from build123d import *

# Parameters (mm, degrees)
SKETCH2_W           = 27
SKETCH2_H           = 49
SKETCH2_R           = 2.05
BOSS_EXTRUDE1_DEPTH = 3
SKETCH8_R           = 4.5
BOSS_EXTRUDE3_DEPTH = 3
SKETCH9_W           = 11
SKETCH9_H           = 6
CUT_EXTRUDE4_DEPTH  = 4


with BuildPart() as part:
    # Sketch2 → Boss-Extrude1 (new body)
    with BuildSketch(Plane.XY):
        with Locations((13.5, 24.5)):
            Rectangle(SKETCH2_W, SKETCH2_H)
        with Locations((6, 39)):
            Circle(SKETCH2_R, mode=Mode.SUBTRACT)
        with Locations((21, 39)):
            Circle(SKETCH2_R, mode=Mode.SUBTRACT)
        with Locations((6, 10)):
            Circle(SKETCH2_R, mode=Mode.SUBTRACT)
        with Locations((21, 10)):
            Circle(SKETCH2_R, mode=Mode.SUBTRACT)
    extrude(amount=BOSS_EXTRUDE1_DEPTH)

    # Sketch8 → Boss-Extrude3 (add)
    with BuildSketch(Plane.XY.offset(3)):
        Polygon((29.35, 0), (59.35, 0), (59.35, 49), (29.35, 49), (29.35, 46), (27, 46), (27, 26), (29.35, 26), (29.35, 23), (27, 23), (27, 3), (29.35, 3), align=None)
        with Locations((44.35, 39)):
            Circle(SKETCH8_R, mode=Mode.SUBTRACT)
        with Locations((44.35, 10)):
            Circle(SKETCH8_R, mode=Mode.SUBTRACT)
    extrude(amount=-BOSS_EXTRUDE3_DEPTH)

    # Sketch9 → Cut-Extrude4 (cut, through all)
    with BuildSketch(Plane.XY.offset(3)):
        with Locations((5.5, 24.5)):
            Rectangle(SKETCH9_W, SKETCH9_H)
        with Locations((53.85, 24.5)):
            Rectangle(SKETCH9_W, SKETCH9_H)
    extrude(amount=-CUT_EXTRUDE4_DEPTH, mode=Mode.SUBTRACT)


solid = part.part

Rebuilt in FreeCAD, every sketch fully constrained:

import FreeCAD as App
import Part
import Sketcher
Q = App.Units.Quantity

doc = App.newDocument("Part")
body = doc.addObject("PartDesign::Body", "Body")

sketch1 = body.newObject("Sketcher::SketchObject", "Sketch")
sketch1.AttachmentSupport = (doc.getObject("XY_Plane"), [""])
sketch1.MapMode = "FlatFace"
sketch1.addGeometry([
    Part.LineSegment(App.Vector(0, 49, 0), App.Vector(0, 0, 0)),
    Part.LineSegment(App.Vector(0, 0, 0), App.Vector(27, 0, 0)),
    Part.LineSegment(App.Vector(27, 0, 0), App.Vector(27, 49, 0)),
    Part.LineSegment(App.Vector(27, 49, 0), App.Vector(0, 49, 0)),
    Part.Circle(App.Vector(6, 10, 0), App.Vector(0, 0, 1), 2),
    Part.Circle(App.Vector(21, 10, 0), App.Vector(0, 0, 1), 2),
    Part.Circle(App.Vector(6, 39, 0), App.Vector(0, 0, 1), 2),
    Part.Circle(App.Vector(21, 39, 0), App.Vector(0, 0, 1), 2),
], False)
sketch1.addConstraint([
    Sketcher.Constraint("Coincident", 0, 2, 1, 1),
    Sketcher.Constraint("Coincident", 1, 2, 2, 1),
    Sketcher.Constraint("Coincident", 2, 2, 3, 1),
    Sketcher.Constraint("Coincident", 3, 2, 0, 1),
    Sketcher.Constraint("Vertical", 0),
    Sketcher.Constraint("Horizontal", 1),
    Sketcher.Constraint("Vertical", 2),
    Sketcher.Constraint("Horizontal", 3),
    Sketcher.Constraint("Coincident", 0, 2, -1, 1),
    Sketcher.Constraint("Equal", 4, 5),
    Sketcher.Constraint("Equal", 5, 6),
    Sketcher.Constraint("Equal", 6, 7),
    Sketcher.Constraint("Horizontal", 4, 3, 5, 3),
    Sketcher.Constraint("Horizontal", 6, 3, 7, 3),
    Sketcher.Constraint("Vertical", 4, 3, 6, 3),
    Sketcher.Constraint("Vertical", 5, 3, 7, 3),
    Sketcher.Constraint("Diameter", 4, Q("4.1 mm")),
    Sketcher.Constraint("DistanceX", 1, 1, 1, 2, Q("27 mm")),
    Sketcher.Constraint("DistanceY", 0, 2, 0, 1, Q("49 mm")),
    Sketcher.Constraint("DistanceX", -1, 1, 4, 3, Q("6 mm")),
    Sketcher.Constraint("DistanceY", -1, 1, 4, 3, Q("10 mm")),
    Sketcher.Constraint("DistanceX", -1, 1, 5, 3, Q("21 mm")),
    Sketcher.Constraint("DistanceY", -1, 1, 6, 3, Q("39 mm")),
])
pad1 = body.newObject("PartDesign::Pad", "Pad")
pad1.Profile = sketch1
pad1.Length = 3

sketch2 = body.newObject("Sketcher::SketchObject", "Sketch001")
sketch2.AttachmentSupport = (doc.getObject("XY_Plane"), [""])
sketch2.MapMode = "FlatFace"
sketch2.AttachmentOffset = App.Placement(App.Vector(0, 0, 3), App.Rotation())
sketch2.addGeometry([
    Part.LineSegment(App.Vector(29.4, 0, 0), App.Vector(59.4, 0, 0)),
    Part.LineSegment(App.Vector(59.4, 0, 0), App.Vector(59.4, 49, 0)),
    Part.LineSegment(App.Vector(59.4, 49, 0), App.Vector(29.4, 49, 0)),
    Part.LineSegment(App.Vector(29.4, 49, 0), App.Vector(29.4, 46, 0)),
    Part.LineSegment(App.Vector(29.4, 46, 0), App.Vector(27, 46, 0)),
    Part.LineSegment(App.Vector(27, 46, 0), App.Vector(27, 26, 0)),
    Part.LineSegment(App.Vector(27, 26, 0), App.Vector(29.4, 26, 0)),
    Part.LineSegment(App.Vector(29.4, 26, 0), App.Vector(29.4, 23, 0)),
    Part.LineSegment(App.Vector(29.4, 23, 0), App.Vector(27, 23, 0)),
    Part.LineSegment(App.Vector(27, 23, 0), App.Vector(27, 3, 0)),
    Part.LineSegment(App.Vector(27, 3, 0), App.Vector(29.4, 3, 0)),
    Part.LineSegment(App.Vector(29.4, 3, 0), App.Vector(29.4, 0, 0)),
    Part.Circle(App.Vector(44.4, 10, 0), App.Vector(0, 0, 1), 4.5),
    Part.Circle(App.Vector(44.4, 39, 0), App.Vector(0, 0, 1), 4.5),
], False)
sketch2.addConstraint([
    Sketcher.Constraint("Coincident", 0, 2, 1, 1),
    Sketcher.Constraint("Coincident", 1, 2, 2, 1),
    Sketcher.Constraint("Coincident", 2, 2, 3, 1),
    Sketcher.Constraint("Coincident", 3, 2, 4, 1),
    Sketcher.Constraint("Coincident", 4, 2, 5, 1),
    Sketcher.Constraint("Coincident", 5, 2, 6, 1),
    Sketcher.Constraint("Coincident", 6, 2, 7, 1),
    Sketcher.Constraint("Coincident", 7, 2, 8, 1),
    Sketcher.Constraint("Coincident", 8, 2, 9, 1),
    Sketcher.Constraint("Coincident", 9, 2, 10, 1),
    Sketcher.Constraint("Coincident", 10, 2, 11, 1),
    Sketcher.Constraint("Coincident", 11, 2, 0, 1),
    Sketcher.Constraint("Horizontal", 0),
    Sketcher.Constraint("Vertical", 1),
    Sketcher.Constraint("Horizontal", 2),
    Sketcher.Constraint("Vertical", 3),
    Sketcher.Constraint("Horizontal", 4),
    Sketcher.Constraint("Vertical", 5),
    Sketcher.Constraint("Horizontal", 6),
    Sketcher.Constraint("Vertical", 7),
    Sketcher.Constraint("Horizontal", 8),
    Sketcher.Constraint("Vertical", 9),
    Sketcher.Constraint("Horizontal", 10),
    Sketcher.Constraint("Vertical", 11),
    Sketcher.Constraint("Equal", 12, 13),
    Sketcher.Constraint("PointOnObject", 0, 2, -1),
    Sketcher.Constraint("Vertical", 12, 3, 13, 3),
    Sketcher.Constraint("Vertical", 3, 2, 6, 2),
    Sketcher.Constraint("Vertical", 5, 2, 8, 2),
    Sketcher.Constraint("Vertical", 7, 2, 10, 2),
    Sketcher.Constraint("Equal", 3, 7),
    Sketcher.Constraint("Equal", 5, 9),
    Sketcher.Constraint("Equal", 7, 11),
    Sketcher.Constraint("Diameter", 12, Q("9 mm")),
    Sketcher.Constraint("DistanceX", 0, 1, 0, 2, Q("30 mm")),
    Sketcher.Constraint("DistanceY", 1, 1, 1, 2, Q("49 mm")),
    Sketcher.Constraint("DistanceY", 3, 2, 3, 1, Q("3 mm")),
    Sketcher.Constraint("DistanceY", -1, 1, 12, 3, Q("10 mm")),
    Sketcher.Constraint("DistanceY", -1, 1, 13, 3, Q("39 mm")),
    Sketcher.Constraint("DistanceX", -1, 1, 4, 2, Q("27 mm")),
    Sketcher.Constraint("DistanceX", 12, 3, 0, 2, Q("15 mm")),
    Sketcher.Constraint("DistanceX", 4, 2, 4, 1, Q("2.35 mm")),
])
pad2 = body.newObject("PartDesign::Pad", "Pad001")
pad2.Profile = sketch2
pad2.Length = 3
pad2.Reversed = True

sketch3 = body.newObject("Sketcher::SketchObject", "Sketch002")
sketch3.AttachmentSupport = (doc.getObject("XY_Plane"), [""])
sketch3.MapMode = "FlatFace"
sketch3.AttachmentOffset = App.Placement(App.Vector(0, 0, 3), App.Rotation())
sketch3.addGeometry([
    Part.LineSegment(App.Vector(0, 28, 0), App.Vector(0, 22, 0)),
    Part.LineSegment(App.Vector(0, 22, 0), App.Vector(11, 22, 0)),
    Part.LineSegment(App.Vector(11, 22, 0), App.Vector(11, 28, 0)),
    Part.LineSegment(App.Vector(11, 28, 0), App.Vector(0, 28, 0)),
    Part.LineSegment(App.Vector(48, 28, 0), App.Vector(48, 22, 0)),
    Part.LineSegment(App.Vector(48, 22, 0), App.Vector(59, 22, 0)),
    Part.LineSegment(App.Vector(59, 22, 0), App.Vector(59, 28, 0)),
    Part.LineSegment(App.Vector(59, 28, 0), App.Vector(48, 28, 0)),
], False)
sketch3.addConstraint([
    Sketcher.Constraint("Coincident", 0, 2, 1, 1),
    Sketcher.Constraint("Coincident", 1, 2, 2, 1),
    Sketcher.Constraint("Coincident", 2, 2, 3, 1),
    Sketcher.Constraint("Coincident", 3, 2, 0, 1),
    Sketcher.Constraint("Coincident", 4, 2, 5, 1),
    Sketcher.Constraint("Coincident", 5, 2, 6, 1),
    Sketcher.Constraint("Coincident", 6, 2, 7, 1),
    Sketcher.Constraint("Coincident", 7, 2, 4, 1),
    Sketcher.Constraint("Vertical", 0),
    Sketcher.Constraint("Horizontal", 1),
    Sketcher.Constraint("Vertical", 2),
    Sketcher.Constraint("Horizontal", 3),
    Sketcher.Constraint("Vertical", 4),
    Sketcher.Constraint("Horizontal", 5),
    Sketcher.Constraint("Vertical", 6),
    Sketcher.Constraint("Horizontal", 7),
    Sketcher.Constraint("PointOnObject", 0, 2, -2),
    Sketcher.Constraint("Horizontal", 1, 2, 4, 2),
    Sketcher.Constraint("Horizontal", 3, 2, 6, 2),
    Sketcher.Constraint("Equal", 3, 5),
    Sketcher.Constraint("DistanceX", 1, 1, 1, 2, Q("11 mm")),
    Sketcher.Constraint("DistanceY", 0, 2, 0, 1, Q("6 mm")),
    Sketcher.Constraint("DistanceY", -1, 1, 0, 2, Q("21.5 mm")),
    Sketcher.Constraint("DistanceX", -1, 1, 4, 2, Q("48.35 mm")),
])
pocket1 = body.newObject("PartDesign::Pocket", "Pocket")
pocket1.Profile = sketch3
pocket1.Type = "ThroughAll"

doc.recompute()
